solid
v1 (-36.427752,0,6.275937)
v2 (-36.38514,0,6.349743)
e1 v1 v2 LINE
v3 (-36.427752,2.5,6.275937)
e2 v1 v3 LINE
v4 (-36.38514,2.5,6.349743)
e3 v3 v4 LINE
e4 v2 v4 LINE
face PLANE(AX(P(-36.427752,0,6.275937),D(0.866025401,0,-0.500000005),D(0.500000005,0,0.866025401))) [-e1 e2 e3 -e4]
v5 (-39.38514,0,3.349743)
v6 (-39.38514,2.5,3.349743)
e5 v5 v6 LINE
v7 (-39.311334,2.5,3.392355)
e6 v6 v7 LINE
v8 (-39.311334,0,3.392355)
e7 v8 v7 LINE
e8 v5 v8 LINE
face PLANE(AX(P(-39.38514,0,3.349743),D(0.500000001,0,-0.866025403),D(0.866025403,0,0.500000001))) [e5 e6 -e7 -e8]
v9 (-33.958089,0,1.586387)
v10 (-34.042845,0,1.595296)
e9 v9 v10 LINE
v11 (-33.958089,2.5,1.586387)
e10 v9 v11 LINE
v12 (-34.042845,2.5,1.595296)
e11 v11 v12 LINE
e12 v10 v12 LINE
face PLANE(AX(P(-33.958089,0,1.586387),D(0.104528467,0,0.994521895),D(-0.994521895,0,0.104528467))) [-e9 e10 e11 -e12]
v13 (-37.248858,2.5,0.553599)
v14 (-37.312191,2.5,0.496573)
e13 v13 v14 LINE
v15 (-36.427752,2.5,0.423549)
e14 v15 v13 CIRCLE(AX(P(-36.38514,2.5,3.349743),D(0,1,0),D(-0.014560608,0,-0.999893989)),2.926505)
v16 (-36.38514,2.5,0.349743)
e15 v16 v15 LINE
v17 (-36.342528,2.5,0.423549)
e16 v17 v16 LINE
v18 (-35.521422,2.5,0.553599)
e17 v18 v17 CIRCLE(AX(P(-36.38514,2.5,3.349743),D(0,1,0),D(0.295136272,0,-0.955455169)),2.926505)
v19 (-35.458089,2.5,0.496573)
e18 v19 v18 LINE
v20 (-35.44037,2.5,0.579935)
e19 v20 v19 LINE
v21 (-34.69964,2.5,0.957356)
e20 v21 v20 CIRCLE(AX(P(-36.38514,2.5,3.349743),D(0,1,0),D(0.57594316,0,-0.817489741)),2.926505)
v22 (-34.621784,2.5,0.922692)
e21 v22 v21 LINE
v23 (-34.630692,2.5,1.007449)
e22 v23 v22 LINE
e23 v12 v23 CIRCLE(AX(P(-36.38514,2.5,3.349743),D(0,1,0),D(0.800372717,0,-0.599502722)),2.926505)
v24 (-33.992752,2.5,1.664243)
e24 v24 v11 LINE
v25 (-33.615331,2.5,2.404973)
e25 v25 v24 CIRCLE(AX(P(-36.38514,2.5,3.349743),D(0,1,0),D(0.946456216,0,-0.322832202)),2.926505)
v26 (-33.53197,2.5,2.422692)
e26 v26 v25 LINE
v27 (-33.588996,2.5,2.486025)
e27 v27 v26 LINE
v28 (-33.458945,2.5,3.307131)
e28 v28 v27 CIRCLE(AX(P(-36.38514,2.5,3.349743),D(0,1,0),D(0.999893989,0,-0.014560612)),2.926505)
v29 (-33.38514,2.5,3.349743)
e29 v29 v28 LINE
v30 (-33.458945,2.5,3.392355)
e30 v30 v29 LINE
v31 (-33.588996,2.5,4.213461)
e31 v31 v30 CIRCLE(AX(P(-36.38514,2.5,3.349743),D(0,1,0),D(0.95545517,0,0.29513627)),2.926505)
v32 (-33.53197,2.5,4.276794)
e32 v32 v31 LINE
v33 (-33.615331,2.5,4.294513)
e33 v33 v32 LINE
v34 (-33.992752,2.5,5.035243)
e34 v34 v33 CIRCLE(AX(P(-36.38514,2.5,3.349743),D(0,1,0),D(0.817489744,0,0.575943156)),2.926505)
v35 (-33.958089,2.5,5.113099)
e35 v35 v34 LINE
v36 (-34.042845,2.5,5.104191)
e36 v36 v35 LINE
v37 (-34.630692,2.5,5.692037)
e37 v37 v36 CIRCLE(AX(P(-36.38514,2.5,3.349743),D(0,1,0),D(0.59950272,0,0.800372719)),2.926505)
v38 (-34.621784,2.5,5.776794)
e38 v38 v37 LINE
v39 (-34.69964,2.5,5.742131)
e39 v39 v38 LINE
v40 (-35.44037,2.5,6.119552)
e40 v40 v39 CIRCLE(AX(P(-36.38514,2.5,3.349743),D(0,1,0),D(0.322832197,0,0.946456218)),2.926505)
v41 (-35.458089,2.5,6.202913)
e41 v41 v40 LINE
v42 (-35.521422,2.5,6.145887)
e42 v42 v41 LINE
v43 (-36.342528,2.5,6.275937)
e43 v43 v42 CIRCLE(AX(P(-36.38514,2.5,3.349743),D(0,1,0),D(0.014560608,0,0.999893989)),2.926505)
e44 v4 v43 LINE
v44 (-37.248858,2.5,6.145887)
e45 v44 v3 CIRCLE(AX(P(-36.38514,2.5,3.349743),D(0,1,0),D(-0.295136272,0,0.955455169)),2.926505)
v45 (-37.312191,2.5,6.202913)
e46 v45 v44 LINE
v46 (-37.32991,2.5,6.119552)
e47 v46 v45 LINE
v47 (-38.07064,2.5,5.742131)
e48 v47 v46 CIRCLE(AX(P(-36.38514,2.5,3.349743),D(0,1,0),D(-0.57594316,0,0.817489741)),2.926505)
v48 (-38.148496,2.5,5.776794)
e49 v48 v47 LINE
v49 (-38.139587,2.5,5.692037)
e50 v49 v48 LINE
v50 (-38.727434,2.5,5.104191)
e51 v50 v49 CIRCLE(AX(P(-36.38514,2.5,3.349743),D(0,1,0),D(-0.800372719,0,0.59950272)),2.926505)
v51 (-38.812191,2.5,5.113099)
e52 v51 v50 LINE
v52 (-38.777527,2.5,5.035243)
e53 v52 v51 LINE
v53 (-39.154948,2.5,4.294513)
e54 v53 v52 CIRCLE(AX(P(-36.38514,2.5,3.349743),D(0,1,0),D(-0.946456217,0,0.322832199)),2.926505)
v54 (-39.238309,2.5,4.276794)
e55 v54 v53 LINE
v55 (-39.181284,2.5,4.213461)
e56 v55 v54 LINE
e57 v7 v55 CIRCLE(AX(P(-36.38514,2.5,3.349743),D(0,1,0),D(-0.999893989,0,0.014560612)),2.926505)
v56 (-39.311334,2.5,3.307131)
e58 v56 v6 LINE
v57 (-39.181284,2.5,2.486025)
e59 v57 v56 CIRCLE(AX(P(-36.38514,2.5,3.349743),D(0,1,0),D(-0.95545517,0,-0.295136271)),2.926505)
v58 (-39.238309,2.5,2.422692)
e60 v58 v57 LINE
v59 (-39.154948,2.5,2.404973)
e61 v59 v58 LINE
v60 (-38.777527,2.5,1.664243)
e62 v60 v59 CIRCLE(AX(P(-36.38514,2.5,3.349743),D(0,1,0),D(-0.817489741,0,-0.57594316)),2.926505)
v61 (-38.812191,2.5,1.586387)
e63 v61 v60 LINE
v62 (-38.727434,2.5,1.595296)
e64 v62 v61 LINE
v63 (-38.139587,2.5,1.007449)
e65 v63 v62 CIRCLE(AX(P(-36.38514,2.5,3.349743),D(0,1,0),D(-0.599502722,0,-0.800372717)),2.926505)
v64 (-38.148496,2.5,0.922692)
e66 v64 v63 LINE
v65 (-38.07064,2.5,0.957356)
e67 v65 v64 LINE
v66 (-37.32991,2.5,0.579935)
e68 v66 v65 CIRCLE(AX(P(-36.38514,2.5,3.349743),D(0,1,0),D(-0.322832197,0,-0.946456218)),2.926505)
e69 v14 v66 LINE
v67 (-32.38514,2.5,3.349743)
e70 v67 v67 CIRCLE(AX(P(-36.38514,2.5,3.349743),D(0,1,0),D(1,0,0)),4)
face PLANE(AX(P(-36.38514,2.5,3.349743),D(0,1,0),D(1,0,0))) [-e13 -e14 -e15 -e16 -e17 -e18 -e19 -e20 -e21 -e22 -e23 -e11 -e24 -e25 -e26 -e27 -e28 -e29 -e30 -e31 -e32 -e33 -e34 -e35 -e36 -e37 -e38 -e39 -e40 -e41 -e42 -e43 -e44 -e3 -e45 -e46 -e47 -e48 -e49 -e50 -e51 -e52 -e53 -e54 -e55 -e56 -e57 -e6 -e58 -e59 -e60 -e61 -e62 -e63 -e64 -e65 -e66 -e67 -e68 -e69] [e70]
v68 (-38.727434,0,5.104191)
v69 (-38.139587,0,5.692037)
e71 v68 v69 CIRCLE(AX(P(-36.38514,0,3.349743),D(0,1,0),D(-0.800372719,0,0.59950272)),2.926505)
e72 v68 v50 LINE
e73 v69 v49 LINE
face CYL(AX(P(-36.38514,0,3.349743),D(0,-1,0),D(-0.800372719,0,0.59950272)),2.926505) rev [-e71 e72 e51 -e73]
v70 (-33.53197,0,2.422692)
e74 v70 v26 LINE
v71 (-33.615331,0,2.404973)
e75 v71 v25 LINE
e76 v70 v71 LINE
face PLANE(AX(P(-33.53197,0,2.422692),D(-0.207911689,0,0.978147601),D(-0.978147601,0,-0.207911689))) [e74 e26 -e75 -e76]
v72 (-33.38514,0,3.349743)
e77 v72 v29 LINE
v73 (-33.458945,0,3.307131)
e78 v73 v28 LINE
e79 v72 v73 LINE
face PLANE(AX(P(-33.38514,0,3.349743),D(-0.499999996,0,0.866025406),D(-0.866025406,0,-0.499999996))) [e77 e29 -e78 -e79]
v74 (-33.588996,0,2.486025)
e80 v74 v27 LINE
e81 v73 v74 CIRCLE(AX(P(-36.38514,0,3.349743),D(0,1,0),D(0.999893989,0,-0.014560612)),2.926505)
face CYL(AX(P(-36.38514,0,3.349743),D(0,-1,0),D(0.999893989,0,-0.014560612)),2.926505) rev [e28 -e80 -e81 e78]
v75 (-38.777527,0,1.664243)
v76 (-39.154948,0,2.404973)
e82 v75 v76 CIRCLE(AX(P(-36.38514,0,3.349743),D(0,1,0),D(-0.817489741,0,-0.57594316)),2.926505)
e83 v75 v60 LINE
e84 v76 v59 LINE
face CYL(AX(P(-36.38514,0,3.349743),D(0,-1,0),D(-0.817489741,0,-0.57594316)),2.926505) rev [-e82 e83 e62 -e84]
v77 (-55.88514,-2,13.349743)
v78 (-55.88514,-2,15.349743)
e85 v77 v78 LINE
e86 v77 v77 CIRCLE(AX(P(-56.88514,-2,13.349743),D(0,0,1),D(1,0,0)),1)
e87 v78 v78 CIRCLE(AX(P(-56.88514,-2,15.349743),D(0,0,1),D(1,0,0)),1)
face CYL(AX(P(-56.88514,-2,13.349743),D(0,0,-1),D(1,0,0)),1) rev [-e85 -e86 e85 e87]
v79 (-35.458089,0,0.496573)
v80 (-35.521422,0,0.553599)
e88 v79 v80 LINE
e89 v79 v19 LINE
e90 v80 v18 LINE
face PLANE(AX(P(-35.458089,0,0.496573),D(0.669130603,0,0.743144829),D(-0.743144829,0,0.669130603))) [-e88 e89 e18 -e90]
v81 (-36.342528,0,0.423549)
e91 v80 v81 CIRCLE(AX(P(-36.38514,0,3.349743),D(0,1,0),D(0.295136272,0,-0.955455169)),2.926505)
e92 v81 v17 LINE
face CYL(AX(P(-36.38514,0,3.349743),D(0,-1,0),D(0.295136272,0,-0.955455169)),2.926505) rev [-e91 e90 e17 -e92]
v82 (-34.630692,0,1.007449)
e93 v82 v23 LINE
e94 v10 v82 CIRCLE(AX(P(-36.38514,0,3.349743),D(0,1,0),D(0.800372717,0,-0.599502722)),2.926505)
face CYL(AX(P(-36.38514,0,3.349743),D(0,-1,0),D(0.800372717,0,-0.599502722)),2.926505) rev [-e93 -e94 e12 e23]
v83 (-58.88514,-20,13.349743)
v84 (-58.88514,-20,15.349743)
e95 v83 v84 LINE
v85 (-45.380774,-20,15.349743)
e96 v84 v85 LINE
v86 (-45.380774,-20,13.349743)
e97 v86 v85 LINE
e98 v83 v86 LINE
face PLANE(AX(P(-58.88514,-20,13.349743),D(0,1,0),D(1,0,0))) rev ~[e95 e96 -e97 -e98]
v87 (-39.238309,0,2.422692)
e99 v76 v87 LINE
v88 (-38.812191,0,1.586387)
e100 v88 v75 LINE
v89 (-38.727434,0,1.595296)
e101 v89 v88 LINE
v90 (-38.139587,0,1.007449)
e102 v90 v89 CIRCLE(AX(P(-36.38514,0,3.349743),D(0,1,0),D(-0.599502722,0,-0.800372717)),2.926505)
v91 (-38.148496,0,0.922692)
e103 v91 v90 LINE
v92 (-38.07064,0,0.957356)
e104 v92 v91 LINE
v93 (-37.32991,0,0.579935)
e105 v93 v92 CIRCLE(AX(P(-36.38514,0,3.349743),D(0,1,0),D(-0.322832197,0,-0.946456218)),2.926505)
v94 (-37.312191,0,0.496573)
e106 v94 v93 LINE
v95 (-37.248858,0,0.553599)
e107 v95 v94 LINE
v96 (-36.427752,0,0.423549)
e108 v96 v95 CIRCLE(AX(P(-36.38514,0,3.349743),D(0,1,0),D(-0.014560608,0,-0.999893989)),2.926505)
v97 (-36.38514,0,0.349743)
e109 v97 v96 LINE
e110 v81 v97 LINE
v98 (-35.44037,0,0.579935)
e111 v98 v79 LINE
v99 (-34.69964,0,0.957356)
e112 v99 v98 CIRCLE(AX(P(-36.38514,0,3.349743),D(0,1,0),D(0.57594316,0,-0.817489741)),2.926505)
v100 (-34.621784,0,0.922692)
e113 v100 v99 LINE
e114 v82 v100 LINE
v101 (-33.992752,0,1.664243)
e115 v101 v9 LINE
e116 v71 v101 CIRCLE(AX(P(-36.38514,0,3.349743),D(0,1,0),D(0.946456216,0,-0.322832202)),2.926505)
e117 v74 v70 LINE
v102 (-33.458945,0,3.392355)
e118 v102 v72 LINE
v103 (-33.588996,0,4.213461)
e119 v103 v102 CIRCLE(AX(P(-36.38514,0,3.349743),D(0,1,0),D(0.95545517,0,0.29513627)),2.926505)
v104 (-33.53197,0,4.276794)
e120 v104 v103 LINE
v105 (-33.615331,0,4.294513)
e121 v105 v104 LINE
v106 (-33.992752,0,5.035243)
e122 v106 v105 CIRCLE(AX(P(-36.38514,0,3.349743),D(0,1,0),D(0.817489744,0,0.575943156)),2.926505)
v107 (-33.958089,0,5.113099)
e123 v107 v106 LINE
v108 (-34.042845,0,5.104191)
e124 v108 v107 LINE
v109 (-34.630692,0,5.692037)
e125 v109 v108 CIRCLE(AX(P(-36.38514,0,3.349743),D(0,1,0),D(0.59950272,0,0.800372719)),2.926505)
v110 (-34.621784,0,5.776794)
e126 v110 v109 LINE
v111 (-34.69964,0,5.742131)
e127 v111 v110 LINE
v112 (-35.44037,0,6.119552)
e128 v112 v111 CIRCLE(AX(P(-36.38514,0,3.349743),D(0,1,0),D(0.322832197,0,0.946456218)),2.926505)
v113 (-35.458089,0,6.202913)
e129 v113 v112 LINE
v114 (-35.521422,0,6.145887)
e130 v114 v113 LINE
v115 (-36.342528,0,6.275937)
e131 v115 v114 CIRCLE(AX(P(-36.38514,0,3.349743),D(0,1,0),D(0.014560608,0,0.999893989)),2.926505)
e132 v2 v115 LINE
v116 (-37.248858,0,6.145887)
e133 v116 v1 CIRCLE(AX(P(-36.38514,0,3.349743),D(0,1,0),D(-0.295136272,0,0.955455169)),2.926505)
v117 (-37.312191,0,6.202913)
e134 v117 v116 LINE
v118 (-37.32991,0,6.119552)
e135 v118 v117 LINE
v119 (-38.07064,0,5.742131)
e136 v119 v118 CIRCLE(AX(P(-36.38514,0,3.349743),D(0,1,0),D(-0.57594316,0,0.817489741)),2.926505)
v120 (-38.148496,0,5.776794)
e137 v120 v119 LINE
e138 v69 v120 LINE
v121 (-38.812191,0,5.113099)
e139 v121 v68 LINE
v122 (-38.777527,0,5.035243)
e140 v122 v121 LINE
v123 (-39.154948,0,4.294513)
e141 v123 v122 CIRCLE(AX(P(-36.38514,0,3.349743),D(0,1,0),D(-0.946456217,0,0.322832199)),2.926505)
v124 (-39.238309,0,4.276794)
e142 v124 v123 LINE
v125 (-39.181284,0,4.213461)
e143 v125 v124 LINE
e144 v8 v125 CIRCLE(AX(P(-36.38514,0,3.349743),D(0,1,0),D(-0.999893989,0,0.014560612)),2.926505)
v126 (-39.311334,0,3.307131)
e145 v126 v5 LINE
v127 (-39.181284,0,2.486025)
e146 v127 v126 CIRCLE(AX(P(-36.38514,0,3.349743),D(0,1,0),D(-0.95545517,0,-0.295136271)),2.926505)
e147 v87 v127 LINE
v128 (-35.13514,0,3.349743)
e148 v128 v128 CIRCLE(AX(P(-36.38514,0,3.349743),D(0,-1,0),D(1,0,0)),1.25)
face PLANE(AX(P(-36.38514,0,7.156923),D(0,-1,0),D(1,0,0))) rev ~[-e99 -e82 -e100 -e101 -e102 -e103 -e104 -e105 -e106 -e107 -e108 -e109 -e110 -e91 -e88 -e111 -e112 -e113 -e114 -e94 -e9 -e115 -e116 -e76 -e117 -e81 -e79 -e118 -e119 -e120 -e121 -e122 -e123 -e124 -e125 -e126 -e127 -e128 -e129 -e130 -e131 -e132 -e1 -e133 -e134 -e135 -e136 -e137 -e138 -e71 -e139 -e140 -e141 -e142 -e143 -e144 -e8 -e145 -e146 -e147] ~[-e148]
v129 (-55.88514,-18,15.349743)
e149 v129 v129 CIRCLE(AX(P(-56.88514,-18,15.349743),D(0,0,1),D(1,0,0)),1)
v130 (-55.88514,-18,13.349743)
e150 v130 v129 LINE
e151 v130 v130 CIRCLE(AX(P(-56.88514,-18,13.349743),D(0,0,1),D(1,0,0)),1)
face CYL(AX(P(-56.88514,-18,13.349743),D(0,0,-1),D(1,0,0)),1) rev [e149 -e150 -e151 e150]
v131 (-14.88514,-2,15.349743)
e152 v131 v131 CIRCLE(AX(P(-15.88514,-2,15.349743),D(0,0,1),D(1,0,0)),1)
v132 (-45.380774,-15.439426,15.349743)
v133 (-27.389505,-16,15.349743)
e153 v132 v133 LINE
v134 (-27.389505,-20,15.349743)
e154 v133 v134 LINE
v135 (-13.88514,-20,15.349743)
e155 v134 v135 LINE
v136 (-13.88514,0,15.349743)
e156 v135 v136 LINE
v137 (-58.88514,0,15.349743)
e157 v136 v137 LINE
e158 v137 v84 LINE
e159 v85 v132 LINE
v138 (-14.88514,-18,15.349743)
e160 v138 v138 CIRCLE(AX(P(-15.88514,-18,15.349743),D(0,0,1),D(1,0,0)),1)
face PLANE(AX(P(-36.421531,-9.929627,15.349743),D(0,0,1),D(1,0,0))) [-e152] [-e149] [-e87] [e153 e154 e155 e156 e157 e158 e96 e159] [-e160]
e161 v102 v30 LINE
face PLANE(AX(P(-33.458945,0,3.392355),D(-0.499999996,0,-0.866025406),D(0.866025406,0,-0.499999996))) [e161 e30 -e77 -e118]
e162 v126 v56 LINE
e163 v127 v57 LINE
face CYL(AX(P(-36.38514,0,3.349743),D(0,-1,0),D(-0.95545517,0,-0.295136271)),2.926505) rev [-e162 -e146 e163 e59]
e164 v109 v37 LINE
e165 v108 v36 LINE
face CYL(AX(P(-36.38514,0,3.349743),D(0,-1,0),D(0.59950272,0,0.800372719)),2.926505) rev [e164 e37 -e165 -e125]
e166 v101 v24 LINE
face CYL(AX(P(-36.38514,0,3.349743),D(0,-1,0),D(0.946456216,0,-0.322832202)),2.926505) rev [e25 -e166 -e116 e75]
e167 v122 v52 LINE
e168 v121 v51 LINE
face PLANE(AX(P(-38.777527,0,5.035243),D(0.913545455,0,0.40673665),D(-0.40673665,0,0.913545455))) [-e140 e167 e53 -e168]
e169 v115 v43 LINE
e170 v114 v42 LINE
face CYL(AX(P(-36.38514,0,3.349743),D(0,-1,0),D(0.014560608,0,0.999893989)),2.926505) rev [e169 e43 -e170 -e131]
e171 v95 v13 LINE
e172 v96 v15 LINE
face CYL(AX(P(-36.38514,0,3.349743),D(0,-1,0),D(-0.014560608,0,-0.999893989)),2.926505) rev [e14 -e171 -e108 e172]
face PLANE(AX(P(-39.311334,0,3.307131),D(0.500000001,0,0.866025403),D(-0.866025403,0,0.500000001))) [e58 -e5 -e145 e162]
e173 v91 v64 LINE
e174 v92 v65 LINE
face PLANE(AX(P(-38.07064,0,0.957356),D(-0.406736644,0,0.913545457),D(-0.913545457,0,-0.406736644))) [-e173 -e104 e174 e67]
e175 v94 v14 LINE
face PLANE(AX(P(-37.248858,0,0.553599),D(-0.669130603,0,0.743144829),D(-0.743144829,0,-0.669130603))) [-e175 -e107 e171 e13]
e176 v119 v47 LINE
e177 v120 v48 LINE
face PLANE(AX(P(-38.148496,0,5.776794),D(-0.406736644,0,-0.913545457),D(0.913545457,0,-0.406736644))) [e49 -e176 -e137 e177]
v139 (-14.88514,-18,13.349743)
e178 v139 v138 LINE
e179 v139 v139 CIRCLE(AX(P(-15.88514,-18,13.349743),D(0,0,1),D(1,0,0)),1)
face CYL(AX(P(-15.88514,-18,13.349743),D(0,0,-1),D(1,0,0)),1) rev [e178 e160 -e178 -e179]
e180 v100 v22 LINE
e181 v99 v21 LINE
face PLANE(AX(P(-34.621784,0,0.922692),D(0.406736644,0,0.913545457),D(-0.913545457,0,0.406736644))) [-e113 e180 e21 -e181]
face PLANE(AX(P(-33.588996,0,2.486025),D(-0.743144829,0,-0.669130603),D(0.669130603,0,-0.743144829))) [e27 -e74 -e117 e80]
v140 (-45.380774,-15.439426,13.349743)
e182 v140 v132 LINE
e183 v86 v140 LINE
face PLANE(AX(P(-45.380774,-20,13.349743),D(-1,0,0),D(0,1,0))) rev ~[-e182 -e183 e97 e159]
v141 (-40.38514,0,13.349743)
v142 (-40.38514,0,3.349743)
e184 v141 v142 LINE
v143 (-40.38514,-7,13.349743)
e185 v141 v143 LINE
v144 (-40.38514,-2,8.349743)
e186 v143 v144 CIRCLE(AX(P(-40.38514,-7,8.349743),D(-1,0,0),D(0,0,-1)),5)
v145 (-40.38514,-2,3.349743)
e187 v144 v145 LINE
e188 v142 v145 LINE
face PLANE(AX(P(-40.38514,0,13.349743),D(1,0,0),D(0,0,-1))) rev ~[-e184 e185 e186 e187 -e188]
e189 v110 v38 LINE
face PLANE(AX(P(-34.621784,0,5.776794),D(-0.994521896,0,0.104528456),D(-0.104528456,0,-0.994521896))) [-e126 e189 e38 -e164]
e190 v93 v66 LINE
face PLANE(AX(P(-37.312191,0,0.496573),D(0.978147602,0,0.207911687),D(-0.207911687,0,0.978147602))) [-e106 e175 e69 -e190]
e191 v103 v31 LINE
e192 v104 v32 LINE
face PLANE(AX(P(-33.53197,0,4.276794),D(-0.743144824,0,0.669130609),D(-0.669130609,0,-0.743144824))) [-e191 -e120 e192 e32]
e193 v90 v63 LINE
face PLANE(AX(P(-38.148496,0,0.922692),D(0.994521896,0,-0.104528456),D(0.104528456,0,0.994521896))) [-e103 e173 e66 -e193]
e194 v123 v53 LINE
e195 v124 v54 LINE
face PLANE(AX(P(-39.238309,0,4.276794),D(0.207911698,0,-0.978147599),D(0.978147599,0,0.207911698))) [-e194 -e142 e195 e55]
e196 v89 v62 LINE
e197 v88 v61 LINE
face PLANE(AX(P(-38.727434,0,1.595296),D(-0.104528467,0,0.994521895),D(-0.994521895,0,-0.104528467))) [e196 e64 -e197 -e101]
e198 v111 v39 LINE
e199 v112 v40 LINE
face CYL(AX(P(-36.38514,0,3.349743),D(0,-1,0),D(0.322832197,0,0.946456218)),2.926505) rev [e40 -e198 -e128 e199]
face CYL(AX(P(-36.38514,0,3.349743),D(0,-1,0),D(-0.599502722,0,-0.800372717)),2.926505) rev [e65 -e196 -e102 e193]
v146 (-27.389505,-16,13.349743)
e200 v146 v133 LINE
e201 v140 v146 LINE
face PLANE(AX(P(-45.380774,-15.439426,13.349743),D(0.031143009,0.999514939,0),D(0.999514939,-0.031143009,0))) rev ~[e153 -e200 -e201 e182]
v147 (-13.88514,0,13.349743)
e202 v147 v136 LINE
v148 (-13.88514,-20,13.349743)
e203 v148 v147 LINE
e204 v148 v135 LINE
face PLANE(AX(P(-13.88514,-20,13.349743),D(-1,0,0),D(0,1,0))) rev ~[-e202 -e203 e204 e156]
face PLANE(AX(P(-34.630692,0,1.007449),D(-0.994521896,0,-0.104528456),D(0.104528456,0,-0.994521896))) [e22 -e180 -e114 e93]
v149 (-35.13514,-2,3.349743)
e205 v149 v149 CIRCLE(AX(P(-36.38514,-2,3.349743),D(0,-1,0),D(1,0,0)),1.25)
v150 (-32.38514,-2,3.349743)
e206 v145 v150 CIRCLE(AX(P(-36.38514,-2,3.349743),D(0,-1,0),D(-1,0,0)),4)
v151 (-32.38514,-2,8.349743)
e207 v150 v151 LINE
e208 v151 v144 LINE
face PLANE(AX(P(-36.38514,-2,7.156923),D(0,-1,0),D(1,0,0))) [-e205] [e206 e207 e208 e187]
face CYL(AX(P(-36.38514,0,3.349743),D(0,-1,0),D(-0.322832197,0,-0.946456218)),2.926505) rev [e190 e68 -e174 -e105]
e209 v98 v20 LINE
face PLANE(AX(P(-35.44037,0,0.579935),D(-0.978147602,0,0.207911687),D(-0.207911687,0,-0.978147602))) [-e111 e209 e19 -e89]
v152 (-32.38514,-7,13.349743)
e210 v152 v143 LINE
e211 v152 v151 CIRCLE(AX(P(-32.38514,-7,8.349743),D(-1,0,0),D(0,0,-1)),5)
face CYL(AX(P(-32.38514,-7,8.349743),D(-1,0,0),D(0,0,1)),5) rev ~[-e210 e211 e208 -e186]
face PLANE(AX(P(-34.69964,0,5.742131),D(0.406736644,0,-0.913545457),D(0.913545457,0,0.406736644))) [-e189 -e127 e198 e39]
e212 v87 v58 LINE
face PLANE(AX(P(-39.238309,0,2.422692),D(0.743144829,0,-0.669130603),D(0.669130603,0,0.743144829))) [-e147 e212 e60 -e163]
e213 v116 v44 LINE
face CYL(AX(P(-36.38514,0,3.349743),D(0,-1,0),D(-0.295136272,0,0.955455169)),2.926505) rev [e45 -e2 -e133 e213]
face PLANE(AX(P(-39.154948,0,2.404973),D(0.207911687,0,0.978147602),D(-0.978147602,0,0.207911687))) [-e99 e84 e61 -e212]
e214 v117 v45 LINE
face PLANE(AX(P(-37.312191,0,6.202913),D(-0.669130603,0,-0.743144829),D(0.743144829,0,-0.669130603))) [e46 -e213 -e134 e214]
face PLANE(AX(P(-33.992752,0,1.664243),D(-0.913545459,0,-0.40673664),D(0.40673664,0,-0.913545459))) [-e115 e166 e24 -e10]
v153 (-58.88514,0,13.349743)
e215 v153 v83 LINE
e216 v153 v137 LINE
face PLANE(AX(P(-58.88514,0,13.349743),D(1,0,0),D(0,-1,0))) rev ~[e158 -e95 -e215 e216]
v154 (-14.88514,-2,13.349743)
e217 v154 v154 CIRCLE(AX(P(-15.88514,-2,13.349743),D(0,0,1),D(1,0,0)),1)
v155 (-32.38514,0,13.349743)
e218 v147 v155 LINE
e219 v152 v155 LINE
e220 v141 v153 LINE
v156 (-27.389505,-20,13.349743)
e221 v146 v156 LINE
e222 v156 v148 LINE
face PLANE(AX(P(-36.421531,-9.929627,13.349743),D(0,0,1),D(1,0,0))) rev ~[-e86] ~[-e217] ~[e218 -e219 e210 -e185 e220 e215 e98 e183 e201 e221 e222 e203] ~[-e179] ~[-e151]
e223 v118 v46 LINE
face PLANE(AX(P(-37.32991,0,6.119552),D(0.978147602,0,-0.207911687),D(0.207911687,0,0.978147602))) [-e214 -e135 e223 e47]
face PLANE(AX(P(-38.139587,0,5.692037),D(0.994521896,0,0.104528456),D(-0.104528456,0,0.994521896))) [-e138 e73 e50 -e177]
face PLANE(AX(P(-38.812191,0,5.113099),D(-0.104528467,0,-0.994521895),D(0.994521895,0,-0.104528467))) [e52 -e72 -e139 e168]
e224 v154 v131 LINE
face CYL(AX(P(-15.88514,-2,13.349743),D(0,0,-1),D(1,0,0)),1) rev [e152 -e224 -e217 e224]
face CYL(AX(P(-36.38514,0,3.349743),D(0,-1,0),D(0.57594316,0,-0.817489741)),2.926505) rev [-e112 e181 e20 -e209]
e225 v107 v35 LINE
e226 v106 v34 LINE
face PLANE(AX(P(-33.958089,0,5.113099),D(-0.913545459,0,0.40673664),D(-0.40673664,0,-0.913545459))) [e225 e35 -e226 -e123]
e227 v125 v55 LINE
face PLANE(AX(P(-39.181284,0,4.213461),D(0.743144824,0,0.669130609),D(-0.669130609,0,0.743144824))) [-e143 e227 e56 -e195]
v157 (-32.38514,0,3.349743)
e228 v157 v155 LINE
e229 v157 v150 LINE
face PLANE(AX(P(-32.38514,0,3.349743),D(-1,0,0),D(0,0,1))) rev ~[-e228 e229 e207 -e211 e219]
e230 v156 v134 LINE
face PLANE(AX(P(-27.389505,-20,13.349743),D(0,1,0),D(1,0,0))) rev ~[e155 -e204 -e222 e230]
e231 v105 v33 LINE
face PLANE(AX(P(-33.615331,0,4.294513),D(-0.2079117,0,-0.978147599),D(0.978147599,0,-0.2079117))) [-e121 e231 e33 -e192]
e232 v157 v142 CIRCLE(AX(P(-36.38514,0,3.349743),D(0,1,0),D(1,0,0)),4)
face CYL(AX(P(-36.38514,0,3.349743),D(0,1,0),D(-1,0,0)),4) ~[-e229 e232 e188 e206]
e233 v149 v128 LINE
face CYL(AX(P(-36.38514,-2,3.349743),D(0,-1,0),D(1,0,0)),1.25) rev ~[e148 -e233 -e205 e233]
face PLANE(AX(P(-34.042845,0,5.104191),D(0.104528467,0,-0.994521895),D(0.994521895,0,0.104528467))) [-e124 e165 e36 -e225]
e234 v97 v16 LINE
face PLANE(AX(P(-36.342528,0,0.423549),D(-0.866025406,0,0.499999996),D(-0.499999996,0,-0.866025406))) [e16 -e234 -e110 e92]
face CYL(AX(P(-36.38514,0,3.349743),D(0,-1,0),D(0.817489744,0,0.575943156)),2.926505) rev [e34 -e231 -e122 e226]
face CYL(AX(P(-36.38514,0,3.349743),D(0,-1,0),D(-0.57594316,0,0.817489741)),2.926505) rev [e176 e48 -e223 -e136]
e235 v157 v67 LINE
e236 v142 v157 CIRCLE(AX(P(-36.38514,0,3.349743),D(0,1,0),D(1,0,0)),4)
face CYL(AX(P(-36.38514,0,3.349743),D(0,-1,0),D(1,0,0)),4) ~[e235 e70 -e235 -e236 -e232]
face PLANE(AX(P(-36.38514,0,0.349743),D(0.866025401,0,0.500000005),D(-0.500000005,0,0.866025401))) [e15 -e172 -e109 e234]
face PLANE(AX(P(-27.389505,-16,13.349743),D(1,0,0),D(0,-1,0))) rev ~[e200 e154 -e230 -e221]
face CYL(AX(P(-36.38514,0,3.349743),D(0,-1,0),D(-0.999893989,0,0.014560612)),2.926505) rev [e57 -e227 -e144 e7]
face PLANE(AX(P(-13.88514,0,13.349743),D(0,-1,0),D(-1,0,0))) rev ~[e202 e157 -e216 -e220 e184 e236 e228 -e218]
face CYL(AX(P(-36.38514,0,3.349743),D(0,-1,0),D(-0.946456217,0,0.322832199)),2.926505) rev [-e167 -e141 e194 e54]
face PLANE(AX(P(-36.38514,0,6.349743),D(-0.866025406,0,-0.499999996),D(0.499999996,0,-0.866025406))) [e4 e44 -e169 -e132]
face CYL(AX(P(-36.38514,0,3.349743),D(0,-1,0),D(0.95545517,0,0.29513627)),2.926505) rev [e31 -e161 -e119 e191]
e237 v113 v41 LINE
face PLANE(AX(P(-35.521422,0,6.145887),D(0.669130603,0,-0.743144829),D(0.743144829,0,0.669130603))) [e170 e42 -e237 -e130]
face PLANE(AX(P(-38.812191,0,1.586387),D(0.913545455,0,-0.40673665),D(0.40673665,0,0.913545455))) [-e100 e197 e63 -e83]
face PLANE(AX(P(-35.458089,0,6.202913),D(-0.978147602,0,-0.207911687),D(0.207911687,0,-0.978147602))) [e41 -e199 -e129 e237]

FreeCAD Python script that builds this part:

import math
import FreeCAD as App
import Part
import Sketcher

V = App.Vector
Q = App.Units.Quantity


def edges_at(feature, points):
    """Names of the edges that pass closest to the given points."""
    edges = feature.Shape.Edges
    near = lambda p: min(range(len(edges)), key=lambda i: edges[i].distToShape(Part.Vertex(*p))[0])
    return sorted({f"Edge{near(p) + 1}" for p in points})


def add_polygon(sketch, points):
    """Adds a closed chain of lines whose ends are joined by coincident constraints."""
    first, n = sketch.GeometryCount, len(points)
    for a, b in zip(points, points[1:] + points[:1]):
        sketch.addGeometry(Part.LineSegment(App.Vector(*a, 0), App.Vector(*b, 0)), False)
    for i in range(n):
        sketch.addConstraint(Sketcher.Constraint("Coincident", first + i, 2, first + (i + 1) % n, 1))

doc = App.newDocument("Part")
body = doc.addObject("PartDesign::Body", "Body")

# Sketch on XZ plane
sketch1 = doc.addObject("Sketcher::SketchObject", "Sketch")
body.addObject(sketch1)
sketch1.AttachmentSupport = (doc.XZ_Plane, [""])
sketch1.MapMode = "FlatFace"
sketch1.addGeometry([
    Part.Circle(V(-36.38514, 3.349743, 0), V(0, 0, 1), 4),  # 0
    Part.LineSegment(V(-36.427752, 0.423549, 0), V(-36.38514, 0.349743, 0)),  # 1
    Part.LineSegment(V(-36.38514, 0.349743, 0), V(-36.342528, 0.423549, 0)),  # 2
    Part.ArcOfCircle(Part.Circle(V(-36.38514, 3.349743, 0), V(0, 0, 1), 2.926505), math.radians(-89.165709), math.radians(-72.834291)),  # 3
    Part.LineSegment(V(-35.521422, 0.553599, 0), V(-35.458089, 0.496573, 0)),  # 4
    Part.LineSegment(V(-35.458089, 0.496573, 0), V(-35.44037, 0.579935, 0)),  # 5
    Part.ArcOfCircle(Part.Circle(V(-36.38514, 3.349743, 0), V(0, 0, 1), 2.926505), math.radians(-71.165709), math.radians(-54.834291)),  # 6
    Part.LineSegment(V(-34.69964, 0.957356, 0), V(-34.621784, 0.922692, 0)),  # 7
    Part.LineSegment(V(-34.621784, 0.922692, 0), V(-34.630692, 1.007449, 0)),  # 8
    Part.ArcOfCircle(Part.Circle(V(-36.38514, 3.349743, 0), V(0, 0, 1), 2.926505), math.radians(-53.165709), math.radians(-36.834291)),  # 9
    Part.LineSegment(V(-34.042845, 1.595296, 0), V(-33.958089, 1.586387, 0)),  # 10
    Part.LineSegment(V(-33.958089, 1.586387, 0), V(-33.992752, 1.664243, 0)),  # 11
    Part.ArcOfCircle(Part.Circle(V(-36.38514, 3.349743, 0), V(0, 0, 1), 2.926505), math.radians(-35.165709), math.radians(-18.834291)),  # 12
    Part.LineSegment(V(-33.615331, 2.404973, 0), V(-33.53197, 2.422692, 0)),  # 13
    Part.LineSegment(V(-33.53197, 2.422692, 0), V(-33.588996, 2.486025, 0)),  # 14
    Part.ArcOfCircle(Part.Circle(V(-36.38514, 3.349743, 0), V(0, 0, 1), 2.926505), math.radians(-17.165709), math.radians(-0.834291)),  # 15
    Part.LineSegment(V(-33.458945, 3.307131, 0), V(-33.38514, 3.349743, 0)),  # 16
    Part.LineSegment(V(-33.38514, 3.349743, 0), V(-33.458945, 3.392355, 0)),  # 17
    Part.ArcOfCircle(Part.Circle(V(-36.38514, 3.349743, 0), V(0, 0, 1), 2.926505), math.radians(0.834291), math.radians(17.165709)),  # 18
    Part.LineSegment(V(-33.588996, 4.213461, 0), V(-33.53197, 4.276794, 0)),  # 19
    Part.LineSegment(V(-33.53197, 4.276794, 0), V(-33.615331, 4.294513, 0)),  # 20
    Part.ArcOfCircle(Part.Circle(V(-36.38514, 3.349743, 0), V(0, 0, 1), 2.926505), math.radians(18.834291), math.radians(35.165709)),  # 21
    Part.LineSegment(V(-33.992752, 5.035243, 0), V(-33.958089, 5.113099, 0)),  # 22
    Part.LineSegment(V(-33.958089, 5.113099, 0), V(-34.042845, 5.104191, 0)),  # 23
    Part.ArcOfCircle(Part.Circle(V(-36.38514, 3.349743, 0), V(0, 0, 1), 2.926505), math.radians(36.834291), math.radians(53.165709)),  # 24
    Part.LineSegment(V(-34.630692, 5.692037, 0), V(-34.621784, 5.776794, 0)),  # 25
    Part.LineSegment(V(-34.621784, 5.776794, 0), V(-34.69964, 5.742131, 0)),  # 26
    Part.ArcOfCircle(Part.Circle(V(-36.38514, 3.349743, 0), V(0, 0, 1), 2.926505), math.radians(54.834291), math.radians(71.165709)),  # 27
    Part.LineSegment(V(-35.44037, 6.119552, 0), V(-35.458089, 6.202913, 0)),  # 28
    Part.LineSegment(V(-35.458089, 6.202913, 0), V(-35.521422, 6.145887, 0)),  # 29
    Part.ArcOfCircle(Part.Circle(V(-36.38514, 3.349743, 0), V(0, 0, 1), 2.926505), math.radians(72.834291), math.radians(89.165709)),  # 30
    Part.LineSegment(V(-36.342528, 6.275937, 0), V(-36.38514, 6.349743, 0)),  # 31
    Part.LineSegment(V(-36.38514, 6.349743, 0), V(-36.427752, 6.275937, 0)),  # 32
    Part.ArcOfCircle(Part.Circle(V(-36.38514, 3.349743, 0), V(0, 0, 1), 2.926505), math.radians(90.834291), math.radians(107.165709)),  # 33
    Part.LineSegment(V(-37.248858, 6.145887, 0), V(-37.312191, 6.202913, 0)),  # 34
    Part.LineSegment(V(-37.312191, 6.202913, 0), V(-37.32991, 6.119552, 0)),  # 35
    Part.ArcOfCircle(Part.Circle(V(-36.38514, 3.349743, 0), V(0, 0, 1), 2.926505), math.radians(108.834291), math.radians(125.165709)),  # 36
    Part.LineSegment(V(-38.07064, 5.742131, 0), V(-38.148496, 5.776794, 0)),  # 37
    Part.LineSegment(V(-38.148496, 5.776794, 0), V(-38.139587, 5.692037, 0)),  # 38
    Part.ArcOfCircle(Part.Circle(V(-36.38514, 3.349743, 0), V(0, 0, 1), 2.926505), math.radians(126.834291), math.radians(143.165709)),  # 39
    Part.LineSegment(V(-38.727434, 5.104191, 0), V(-38.812191, 5.113099, 0)),  # 40
    Part.LineSegment(V(-38.812191, 5.113099, 0), V(-38.777527, 5.035243, 0)),  # 41
    Part.ArcOfCircle(Part.Circle(V(-36.38514, 3.349743, 0), V(0, 0, 1), 2.926505), math.radians(144.834291), math.radians(161.165709)),  # 42
    Part.LineSegment(V(-39.154948, 4.294513, 0), V(-39.238309, 4.276794, 0)),  # 43
    Part.LineSegment(V(-39.238309, 4.276794, 0), V(-39.181284, 4.213461, 0)),  # 44
    Part.ArcOfCircle(Part.Circle(V(-36.38514, 3.349743, 0), V(0, 0, 1), 2.926505), math.radians(162.834291), math.radians(179.165709)),  # 45
    Part.LineSegment(V(-39.311334, 3.392355, 0), V(-39.38514, 3.349743, 0)),  # 46
    Part.LineSegment(V(-39.38514, 3.349743, 0), V(-39.311334, 3.307131, 0)),  # 47
    Part.ArcOfCircle(Part.Circle(V(-36.38514, 3.349743, 0), V(0, 0, 1), 2.926505), math.radians(-179.165709), math.radians(-162.834291)),  # 48
    Part.LineSegment(V(-39.181284, 2.486025, 0), V(-39.238309, 2.422692, 0)),  # 49
    Part.LineSegment(V(-39.238309, 2.422692, 0), V(-39.154948, 2.404973, 0)),  # 50
    Part.ArcOfCircle(Part.Circle(V(-36.38514, 3.349743, 0), V(0, 0, 1), 2.926505), math.radians(-161.165709), math.radians(-144.834291)),  # 51
    Part.LineSegment(V(-38.777527, 1.664243, 0), V(-38.812191, 1.586387, 0)),  # 52
    Part.LineSegment(V(-38.812191, 1.586387, 0), V(-38.727434, 1.595296, 0)),  # 53
    Part.ArcOfCircle(Part.Circle(V(-36.38514, 3.349743, 0), V(0, 0, 1), 2.926505), math.radians(-143.165709), math.radians(-126.834291)),  # 54
    Part.LineSegment(V(-38.139587, 1.007449, 0), V(-38.148496, 0.922692, 0)),  # 55
    Part.LineSegment(V(-38.148496, 0.922692, 0), V(-38.07064, 0.957356, 0)),  # 56
    Part.ArcOfCircle(Part.Circle(V(-36.38514, 3.349743, 0), V(0, 0, 1), 2.926505), math.radians(-125.165709), math.radians(-108.834291)),  # 57
    Part.LineSegment(V(-37.32991, 0.579935, 0), V(-37.312191, 0.496573, 0)),  # 58
    Part.LineSegment(V(-37.312191, 0.496573, 0), V(-37.248858, 0.553599, 0)),  # 59
    Part.ArcOfCircle(Part.Circle(V(-36.38514, 3.349743, 0), V(0, 0, 1), 2.926505), math.radians(-107.165709), math.radians(-90.834291)),  # 60
], False)
sketch1.addConstraint([
    Sketcher.Constraint("Coincident", 1, 2, 2, 1),
    Sketcher.Constraint("Coincident", 2, 2, 3, 1),
    Sketcher.Constraint("Coincident", 3, 2, 4, 1),
    Sketcher.Constraint("Coincident", 4, 2, 5, 1),
    Sketcher.Constraint("Coincident", 5, 2, 6, 1),
    Sketcher.Constraint("Coincident", 6, 2, 7, 1),
    Sketcher.Constraint("Coincident", 7, 2, 8, 1),
    Sketcher.Constraint("Coincident", 8, 2, 9, 1),
    Sketcher.Constraint("Coincident", 9, 2, 10, 1),
    Sketcher.Constraint("Coincident", 10, 2, 11, 1),
    Sketcher.Constraint("Coincident", 11, 2, 12, 1),
    Sketcher.Constraint("Coincident", 12, 2, 13, 1),
    Sketcher.Constraint("Coincident", 13, 2, 14, 1),
    Sketcher.Constraint("Coincident", 14, 2, 15, 1),
    Sketcher.Constraint("Coincident", 15, 2, 16, 1),
    Sketcher.Constraint("Coincident", 16, 2, 17, 1),
    Sketcher.Constraint("Coincident", 17, 2, 18, 1),
    Sketcher.Constraint("Coincident", 18, 2, 19, 1),
    Sketcher.Constraint("Coincident", 19, 2, 20, 1),
    Sketcher.Constraint("Coincident", 20, 2, 21, 1),
    Sketcher.Constraint("Coincident", 21, 2, 22, 1),
    Sketcher.Constraint("Coincident", 22, 2, 23, 1),
    Sketcher.Constraint("Coincident", 23, 2, 24, 1),
    Sketcher.Constraint("Coincident", 24, 2, 25, 1),
    Sketcher.Constraint("Coincident", 25, 2, 26, 1),
    Sketcher.Constraint("Coincident", 26, 2, 27, 1),
    Sketcher.Constraint("Coincident", 27, 2, 28, 1),
    Sketcher.Constraint("Coincident", 28, 2, 29, 1),
    Sketcher.Constraint("Coincident", 29, 2, 30, 1),
    Sketcher.Constraint("Coincident", 30, 2, 31, 1),
    Sketcher.Constraint("Coincident", 31, 2, 32, 1),
    Sketcher.Constraint("Coincident", 32, 2, 33, 1),
    Sketcher.Constraint("Coincident", 33, 2, 34, 1),
    Sketcher.Constraint("Coincident", 34, 2, 35, 1),
    Sketcher.Constraint("Coincident", 35, 2, 36, 1),
    Sketcher.Constraint("Coincident", 36, 2, 37, 1),
    Sketcher.Constraint("Coincident", 37, 2, 38, 1),
    Sketcher.Constraint("Coincident", 38, 2, 39, 1),
    Sketcher.Constraint("Coincident", 39, 2, 40, 1),
    Sketcher.Constraint("Coincident", 40, 2, 41, 1),
    Sketcher.Constraint("Coincident", 41, 2, 42, 1),
    Sketcher.Constraint("Coincident", 42, 2, 43, 1),
    Sketcher.Constraint("Coincident", 43, 2, 44, 1),
    Sketcher.Constraint("Coincident", 44, 2, 45, 1),
    Sketcher.Constraint("Coincident", 45, 2, 46, 1),
    Sketcher.Constraint("Coincident", 46, 2, 47, 1),
    Sketcher.Constraint("Coincident", 47, 2, 48, 1),
    Sketcher.Constraint("Coincident", 48, 2, 49, 1),
    Sketcher.Constraint("Coincident", 49, 2, 50, 1),
    Sketcher.Constraint("Coincident", 50, 2, 51, 1),
    Sketcher.Constraint("Coincident", 51, 2, 52, 1),
    Sketcher.Constraint("Coincident", 52, 2, 53, 1),
    Sketcher.Constraint("Coincident", 53, 2, 54, 1),
    Sketcher.Constraint("Coincident", 54, 2, 55, 1),
    Sketcher.Constraint("Coincident", 55, 2, 56, 1),
    Sketcher.Constraint("Coincident", 56, 2, 57, 1),
    Sketcher.Constraint("Coincident", 57, 2, 58, 1),
    Sketcher.Constraint("Coincident", 58, 2, 59, 1),
    Sketcher.Constraint("Coincident", 59, 2, 60, 1),
    Sketcher.Constraint("Coincident", 60, 2, 1, 1),
    Sketcher.Constraint("Coincident", 3, 3, 0, 3),
    Sketcher.Constraint("Coincident", 6, 3, 0, 3),
    Sketcher.Constraint("Coincident", 9, 3, 0, 3),
    Sketcher.Constraint("Coincident", 12, 3, 0, 3),
    Sketcher.Constraint("Coincident", 15, 3, 0, 3),
    Sketcher.Constraint("Coincident", 18, 3, 0, 3),
    Sketcher.Constraint("Coincident", 21, 3, 0, 3),
    Sketcher.Constraint("Coincident", 24, 3, 0, 3),
    Sketcher.Constraint("Coincident", 27, 3, 0, 3),
    Sketcher.Constraint("Coincident", 30, 3, 0, 3),
    Sketcher.Constraint("Coincident", 33, 3, 0, 3),
    Sketcher.Constraint("Coincident", 36, 3, 0, 3),
    Sketcher.Constraint("Coincident", 39, 3, 0, 3),
    Sketcher.Constraint("Coincident", 42, 3, 0, 3),
    Sketcher.Constraint("Coincident", 45, 3, 0, 3),
    Sketcher.Constraint("Coincident", 48, 3, 0, 3),
    Sketcher.Constraint("Coincident", 51, 3, 0, 3),
    Sketcher.Constraint("Coincident", 54, 3, 0, 3),
    Sketcher.Constraint("Coincident", 57, 3, 0, 3),
    Sketcher.Constraint("Coincident", 60, 3, 0, 3),
    Sketcher.Constraint("Equal", 3, 6),
    Sketcher.Constraint("Equal", 6, 9),
    Sketcher.Constraint("Equal", 9, 12),
    Sketcher.Constraint("Equal", 12, 15),
    Sketcher.Constraint("Equal", 15, 18),
    Sketcher.Constraint("Equal", 18, 21),
    Sketcher.Constraint("Equal", 21, 24),
    Sketcher.Constraint("Equal", 24, 27),
    Sketcher.Constraint("Equal", 27, 30),
    Sketcher.Constraint("Equal", 30, 33),
    Sketcher.Constraint("Equal", 33, 36),
    Sketcher.Constraint("Equal", 36, 39),
    Sketcher.Constraint("Equal", 39, 42),
    Sketcher.Constraint("Equal", 42, 45),
    Sketcher.Constraint("Equal", 45, 48),
    Sketcher.Constraint("Equal", 48, 51),
    Sketcher.Constraint("Equal", 51, 54),
    Sketcher.Constraint("Equal", 54, 57),
    Sketcher.Constraint("Equal", 57, 60),
    Sketcher.Constraint("Perpendicular", 1, 16),
    Sketcher.Constraint("Perpendicular", 2, 17),
    Sketcher.Constraint("Perpendicular", 4, 19),
    Sketcher.Constraint("Perpendicular", 5, 20),
    Sketcher.Constraint("Perpendicular", 7, 22),
    Sketcher.Constraint("Perpendicular", 8, 23),
    Sketcher.Constraint("Perpendicular", 10, 25),
    Sketcher.Constraint("Perpendicular", 11, 26),
    Sketcher.Constraint("Perpendicular", 13, 28),
    Sketcher.Constraint("Perpendicular", 14, 29),
    Sketcher.Constraint("Perpendicular", 16, 31),
    Sketcher.Constraint("Perpendicular", 17, 32),
    Sketcher.Constraint("Perpendicular", 19, 34),
    Sketcher.Constraint("Perpendicular", 20, 35),
    Sketcher.Constraint("Perpendicular", 22, 37),
    Sketcher.Constraint("Perpendicular", 23, 38),
    Sketcher.Constraint("Perpendicular", 25, 40),
    Sketcher.Constraint("Perpendicular", 26, 41),
    Sketcher.Constraint("Perpendicular", 28, 43),
    Sketcher.Constraint("Perpendicular", 29, 44),
    Sketcher.Constraint("Perpendicular", 31, 46),
    Sketcher.Constraint("Perpendicular", 32, 47),
    Sketcher.Constraint("Perpendicular", 34, 49),
    Sketcher.Constraint("Perpendicular", 35, 50),
    Sketcher.Constraint("Perpendicular", 37, 52),
    Sketcher.Constraint("Perpendicular", 38, 53),
    Sketcher.Constraint("Perpendicular", 40, 55),
    Sketcher.Constraint("Perpendicular", 41, 56),
    Sketcher.Constraint("Perpendicular", 43, 58),
    Sketcher.Constraint("Perpendicular", 44, 59),
    Sketcher.Constraint("Horizontal", 60, 3, 16, 2),
    Sketcher.Constraint("Horizontal", 30, 2, 32, 2),
    Sketcher.Constraint("Horizontal", 29, 2, 33, 2),
    Sketcher.Constraint("Horizontal", 28, 2, 34, 2),
    Sketcher.Constraint("Horizontal", 27, 2, 35, 2),
    Sketcher.Constraint("Horizontal", 26, 2, 36, 2),
    Sketcher.Constraint("Horizontal", 25, 2, 37, 2),
    Sketcher.Constraint("Horizontal", 24, 2, 38, 2),
    Sketcher.Constraint("Horizontal", 23, 2, 39, 2),
    Sketcher.Constraint("Horizontal", 22, 2, 40, 2),
    Sketcher.Constraint("Horizontal", 21, 2, 41, 2),
    Sketcher.Constraint("Horizontal", 20, 2, 42, 2),
    Sketcher.Constraint("Horizontal", 19, 2, 43, 2),
    Sketcher.Constraint("Horizontal", 18, 2, 44, 2),
    Sketcher.Constraint("Horizontal", 17, 2, 45, 2),
    Sketcher.Constraint("Horizontal", 16, 2, 46, 2),
    Sketcher.Constraint("Horizontal", 15, 2, 47, 2),
    Sketcher.Constraint("Horizontal", 14, 2, 48, 2),
    Sketcher.Constraint("Horizontal", 13, 2, 49, 2),
    Sketcher.Constraint("Horizontal", 11, 2, 51, 2),
    Sketcher.Constraint("Horizontal", 10, 2, 52, 2),
    Sketcher.Constraint("Horizontal", 8, 2, 54, 2),
    Sketcher.Constraint("Horizontal", 7, 2, 55, 2),
    Sketcher.Constraint("Horizontal", 5, 2, 57, 2),
    Sketcher.Constraint("Horizontal", 4, 2, 58, 2),
    Sketcher.Constraint("Horizontal", 2, 2, 60, 2),
    Sketcher.Constraint("Vertical", 14, 2, 18, 2),
    Sketcher.Constraint("Vertical", 13, 2, 19, 2),
    Sketcher.Constraint("Vertical", 11, 2, 21, 2),
    Sketcher.Constraint("Vertical", 10, 2, 22, 2),
    Sketcher.Constraint("Vertical", 8, 2, 24, 2),
    Sketcher.Constraint("Vertical", 7, 2, 25, 2),
    Sketcher.Constraint("Vertical", 5, 2, 27, 2),
    Sketcher.Constraint("Vertical", 4, 2, 28, 2),
    Sketcher.Constraint("Vertical", 2, 2, 30, 2),
    Sketcher.Constraint("Equal", 2, 4),
    Sketcher.Constraint("Equal", 4, 5),
    Sketcher.Constraint("Equal", 5, 7),
    Sketcher.Constraint("Equal", 7, 8),
    Sketcher.Constraint("Equal", 8, 10),
    Sketcher.Constraint("Equal", 10, 11),
    Sketcher.Constraint("Equal", 11, 13),
    Sketcher.Constraint("Equal", 13, 14),
    Sketcher.Constraint("Equal", 14, 16),
    Sketcher.Constraint("Diameter", 0, Q("8 mm")),
    Sketcher.Constraint("Angle", 1, Q("-60 deg")),
    Sketcher.Constraint("Angle", 4, Q("-42 deg")),
    Sketcher.Constraint("Angle", 5, Q("78 deg")),
    Sketcher.Constraint("Angle", 7, Q("-24 deg")),
    Sketcher.Constraint("Angle", 8, Q("96 deg")),
    Sketcher.Constraint("Radius", 3, Q("2.926505 mm")),
    Sketcher.Constraint("DistanceY", -1, 1, 3, 2, Q("0.553599 mm")),
    Sketcher.Constraint("DistanceY", -1, 1, 22, 2, Q("5.113099 mm")),
    Sketcher.Constraint("DistanceX", 0, 3, -1, 1, Q("36.38514 mm")),
])
pad1 = doc.addObject("PartDesign::Pad", "Pad")
body.addObject(pad1)
pad1.Profile = sketch1
pad1.Length = 2.5
pad1.Reversed = True

# Sketch on XZ plane
sketch2 = doc.addObject("Sketcher::SketchObject", "Sketch001")
body.addObject(sketch2)
sketch2.AttachmentSupport = (doc.XZ_Plane, [""])
sketch2.MapMode = "FlatFace"
sketch2.addGeometry([
    Part.ArcOfCircle(Part.Circle(V(-36.38514, 3.349743, 0), V(0, 0, 1), 4), math.radians(180), math.radians(360)),
    Part.LineSegment(V(-32.38514, 3.349743, 0), V(-32.38514, 13.349743, 0)),
    Part.LineSegment(V(-32.38514, 13.349743, 0), V(-40.38514, 13.349743, 0)),
    Part.LineSegment(V(-40.38514, 13.349743, 0), V(-40.38514, 3.349743, 0)),
], False)
sketch2.addConstraint([
    Sketcher.Constraint("Tangent", 0, 2, 1, 1),
    Sketcher.Constraint("Coincident", 1, 2, 2, 1),
    Sketcher.Constraint("Coincident", 2, 2, 3, 1),
    Sketcher.Constraint("Tangent", 3, 2, 0, 1),
    Sketcher.Constraint("Vertical", 1),
    Sketcher.Constraint("Horizontal", 2),
    Sketcher.Constraint("Vertical", 3),
    Sketcher.Constraint("Radius", 0, Q("4 mm")),
    Sketcher.Constraint("DistanceY", 1, 1, 1, 2, Q("10 mm")),
    Sketcher.Constraint("DistanceX", 0, 3, -1, 1, Q("36.38514 mm")),
    Sketcher.Constraint("DistanceY", -1, 1, 0, 3, Q("3.349743 mm")),
])
pad2 = doc.addObject("PartDesign::Pad", "Pad001")
body.addObject(pad2)
pad2.Profile = sketch2
pad2.Length = 2

# Sketch on XY plane
sketch3 = doc.addObject("Sketcher::SketchObject", "Sketch002")
body.addObject(sketch3)
sketch3.AttachmentSupport = (doc.XY_Plane, [""])
sketch3.MapMode = "FlatFace"
sketch3.AttachmentOffset = App.Placement(V(0, 0, 13.349743), App.Rotation())
add_polygon(sketch3, [(-13.88514, 0), (-58.88514, 0), (-58.88514, -20), (-45.380774, -20), (-45.380774, -15.439426), (-27.389505, -16), (-27.389505, -20), (-13.88514, -20)])  # lines 0-7
sketch3.addGeometry(Part.Circle(V(-56.88514, -18, 0), V(0, 0, 1), 1), False)  # 8
sketch3.addGeometry(Part.Circle(V(-15.88514, -18, 0), V(0, 0, 1), 1), False)  # 9
sketch3.addGeometry(Part.Circle(V(-56.88514, -2, 0), V(0, 0, 1), 1), False)  # 10
sketch3.addGeometry(Part.Circle(V(-15.88514, -2, 0), V(0, 0, 1), 1), False)  # 11
sketch3.addConstraint([
    Sketcher.Constraint("Horizontal", 0),
    Sketcher.Constraint("Vertical", 1),
    Sketcher.Constraint("Horizontal", 2),
    Sketcher.Constraint("Vertical", 3),
    Sketcher.Constraint("Vertical", 5),
    Sketcher.Constraint("Horizontal", 6),
    Sketcher.Constraint("Vertical", 7),
    Sketcher.Constraint("Equal", 8, 9),
    Sketcher.Constraint("Equal", 9, 10),
    Sketcher.Constraint("Equal", 10, 11),
    Sketcher.Constraint("PointOnObject", 0, 2, -1),
    Sketcher.Constraint("Horizontal", 8, 3, 9, 3),
    Sketcher.Constraint("Horizontal", 10, 3, 11, 3),
    Sketcher.Constraint("Horizontal", 2, 2, 5, 2),
    Sketcher.Constraint("Vertical", 8, 3, 10, 3),
    Sketcher.Constraint("Vertical", 9, 3, 11, 3),
    Sketcher.Constraint("Equal", 2, 6),
    Sketcher.Constraint("Diameter", 8, Q("2 mm")),
    Sketcher.Constraint("DistanceX", 0, 2, 0, 1, Q("45 mm")),
    Sketcher.Constraint("DistanceY", 1, 2, 1, 1, Q("20 mm")),
    Sketcher.Constraint("DistanceY", 5, 2, 5, 1, Q("4 mm")),
    Sketcher.Constraint("Distance", 4, Q("18 mm")),
    Sketcher.Constraint("DistanceY", 8, 3, -1, 1, Q("18 mm")),
    Sketcher.Constraint("DistanceY", 10, 3, -1, 1, Q("2 mm")),
    Sketcher.Constraint("DistanceX", 8, 3, 9, 3, Q("41 mm")),
    Sketcher.Constraint("DistanceX", 0, 2, 10, 3, Q("2 mm")),
    Sketcher.Constraint("DistanceX", 2, 1, 2, 2, Q("13.504366 mm")),
    Sketcher.Constraint("DistanceX", 8, 3, -1, 1, Q("56.88514 mm")),
])
pad3 = doc.addObject("PartDesign::Pad", "Pad002")
body.addObject(pad3)
pad3.Profile = sketch3
pad3.Length = 2
doc.recompute()

fillet = doc.addObject("PartDesign::Fillet", "Fillet")
body.addObject(fillet)
fillet.Base = (pad3, edges_at(pad3, [(-36.385, -2, 13.35)]))
fillet.Radius = 5

# Sketch on XZ plane
sketch4 = doc.addObject("Sketcher::SketchObject", "Sketch003")
body.addObject(sketch4)
sketch4.AttachmentSupport = (doc.XZ_Plane, [""])
sketch4.MapMode = "FlatFace"
sketch4.AttachmentOffset = App.Placement(V(0, 0, 2), App.Rotation())
sketch4.addGeometry(Part.Circle(V(-36.38514, 3.349743, 0), V(0, 0, 1), 1.25), False)
sketch4.addConstraint([
    Sketcher.Constraint("Diameter", 0, Q("2.5 mm")),
    Sketcher.Constraint("DistanceX", 0, 3, -1, 1, Q("36.38514 mm")),
    Sketcher.Constraint("DistanceY", -1, 1, 0, 3, Q("3.349743 mm")),
])
pocket1 = doc.addObject("PartDesign::Pocket", "Pocket")
body.addObject(pocket1)
pocket1.Profile = sketch4
pocket1.Length = 12

doc.recompute()
